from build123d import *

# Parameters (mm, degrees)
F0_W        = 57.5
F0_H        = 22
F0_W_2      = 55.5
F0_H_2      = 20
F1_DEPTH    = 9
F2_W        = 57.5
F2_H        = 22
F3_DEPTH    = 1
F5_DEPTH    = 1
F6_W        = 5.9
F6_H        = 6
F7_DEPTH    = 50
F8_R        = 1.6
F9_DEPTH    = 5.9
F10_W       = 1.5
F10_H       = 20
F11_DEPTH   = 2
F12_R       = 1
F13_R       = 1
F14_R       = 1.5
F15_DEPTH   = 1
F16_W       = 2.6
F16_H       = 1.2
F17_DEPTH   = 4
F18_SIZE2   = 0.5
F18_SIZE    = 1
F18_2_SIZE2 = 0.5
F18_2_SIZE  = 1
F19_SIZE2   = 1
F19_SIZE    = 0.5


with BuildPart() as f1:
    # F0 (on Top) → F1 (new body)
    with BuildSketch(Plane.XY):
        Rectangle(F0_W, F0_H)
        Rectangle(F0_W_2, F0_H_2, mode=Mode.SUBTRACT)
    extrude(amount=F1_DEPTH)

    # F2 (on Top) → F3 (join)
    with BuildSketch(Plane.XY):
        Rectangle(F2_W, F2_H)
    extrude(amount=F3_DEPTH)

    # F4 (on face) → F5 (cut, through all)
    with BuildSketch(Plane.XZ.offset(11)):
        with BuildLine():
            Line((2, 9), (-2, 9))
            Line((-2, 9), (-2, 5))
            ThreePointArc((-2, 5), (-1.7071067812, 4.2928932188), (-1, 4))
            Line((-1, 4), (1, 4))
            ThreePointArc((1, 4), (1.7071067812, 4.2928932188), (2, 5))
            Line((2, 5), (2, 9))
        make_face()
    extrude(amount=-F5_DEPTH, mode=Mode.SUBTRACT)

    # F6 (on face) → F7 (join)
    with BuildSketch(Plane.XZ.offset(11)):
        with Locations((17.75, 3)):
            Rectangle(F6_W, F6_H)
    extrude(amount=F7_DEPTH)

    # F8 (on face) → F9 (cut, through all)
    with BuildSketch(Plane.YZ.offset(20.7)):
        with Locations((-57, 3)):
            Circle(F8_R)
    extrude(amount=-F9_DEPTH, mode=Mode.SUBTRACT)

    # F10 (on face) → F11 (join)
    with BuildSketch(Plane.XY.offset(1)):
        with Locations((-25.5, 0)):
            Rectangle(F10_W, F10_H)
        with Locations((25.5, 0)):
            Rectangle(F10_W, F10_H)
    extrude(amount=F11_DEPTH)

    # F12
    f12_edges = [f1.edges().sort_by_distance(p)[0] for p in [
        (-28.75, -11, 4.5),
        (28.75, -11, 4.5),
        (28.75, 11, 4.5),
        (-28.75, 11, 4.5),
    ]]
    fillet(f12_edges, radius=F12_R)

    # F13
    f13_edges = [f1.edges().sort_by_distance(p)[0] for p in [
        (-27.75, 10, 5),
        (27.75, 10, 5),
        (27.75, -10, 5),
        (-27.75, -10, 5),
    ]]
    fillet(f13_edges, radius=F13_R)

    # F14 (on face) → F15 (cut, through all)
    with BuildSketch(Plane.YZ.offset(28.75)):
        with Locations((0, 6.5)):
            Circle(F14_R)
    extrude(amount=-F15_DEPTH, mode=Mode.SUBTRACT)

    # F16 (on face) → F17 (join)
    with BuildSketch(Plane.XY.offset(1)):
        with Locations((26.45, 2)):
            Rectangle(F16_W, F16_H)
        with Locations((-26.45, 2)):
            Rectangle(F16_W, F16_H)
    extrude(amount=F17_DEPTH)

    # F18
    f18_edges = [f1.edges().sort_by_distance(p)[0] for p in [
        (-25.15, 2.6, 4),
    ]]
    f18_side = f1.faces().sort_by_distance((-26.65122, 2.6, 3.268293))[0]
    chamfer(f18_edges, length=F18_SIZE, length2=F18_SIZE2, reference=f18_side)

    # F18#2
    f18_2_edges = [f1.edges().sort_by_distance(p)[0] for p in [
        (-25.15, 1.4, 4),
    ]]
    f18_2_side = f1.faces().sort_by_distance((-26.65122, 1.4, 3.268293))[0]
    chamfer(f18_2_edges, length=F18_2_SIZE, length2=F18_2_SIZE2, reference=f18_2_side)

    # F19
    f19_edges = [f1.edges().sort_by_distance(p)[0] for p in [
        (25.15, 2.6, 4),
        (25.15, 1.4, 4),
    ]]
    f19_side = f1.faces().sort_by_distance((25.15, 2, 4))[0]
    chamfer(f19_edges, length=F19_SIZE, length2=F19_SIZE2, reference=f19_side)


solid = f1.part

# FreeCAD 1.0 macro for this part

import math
import FreeCAD as App
import Part
import Sketcher
from FreeCAD import Vector
Q = App.Units.Quantity


def edges_at(feature, points):
    """Names of the edges that pass closest to the given points."""
    edges = feature.Shape.Edges
    near = lambda p: min(range(len(edges)), key=lambda i: edges[i].distToShape(Part.Vertex(*p))[0])
    return sorted({f"Edge{near(p) + 1}" for p in points})

doc = App.newDocument("Part")
body = doc.addObject("PartDesign::Body", "Body")

# Sketch on XY plane
sketch1 = body.newObject("Sketcher::SketchObject", "Sketch")
sketch1.AttachmentSupport = (doc.getObject("XY_Plane"), [""])
sketch1.MapMode = "FlatFace"
sketch1.addGeometry([
    Part.LineSegment(Vector(-29, 11, 0), Vector(-29, -11, 0)),  # 0
    Part.LineSegment(Vector(-29, -11, 0), Vector(29, -11, 0)),  # 1
    Part.LineSegment(Vector(29, -11, 0), Vector(29, 11, 0)),  # 2
    Part.LineSegment(Vector(29, 11, 0), Vector(-29, 11, 0)),  # 3
    Part.LineSegment(Vector(28, -10, 0), Vector(-28, -10, 0)),  # 4
    Part.LineSegment(Vector(-28, -10, 0), Vector(-28, 10, 0)),  # 5
    Part.LineSegment(Vector(-28, 10, 0), Vector(28, 10, 0)),  # 6
    Part.LineSegment(Vector(28, 10, 0), Vector(28, -10, 0)),  # 7
], False)
sketch1.addConstraint([
    Sketcher.Constraint("Coincident", 0, 2, 1, 1),
    Sketcher.Constraint("Coincident", 1, 2, 2, 1),
    Sketcher.Constraint("Coincident", 2, 2, 3, 1),
    Sketcher.Constraint("Coincident", 3, 2, 0, 1),
    Sketcher.Constraint("Coincident", 4, 2, 5, 1),
    Sketcher.Constraint("Coincident", 5, 2, 6, 1),
    Sketcher.Constraint("Coincident", 6, 2, 7, 1),
    Sketcher.Constraint("Coincident", 7, 2, 4, 1),
    Sketcher.Constraint("Vertical", 0),
    Sketcher.Constraint("Horizontal", 1),
    Sketcher.Constraint("Vertical", 2),
    Sketcher.Constraint("Horizontal", 3),
    Sketcher.Constraint("Horizontal", 4),
    Sketcher.Constraint("Vertical", 5),
    Sketcher.Constraint("Horizontal", 6),
    Sketcher.Constraint("Vertical", 7),
    Sketcher.Constraint("Symmetric", 0, 2, 2, 2, -1, 1),
    Sketcher.Constraint("Symmetric", 4, 2, 6, 2, -1, 1),
    Sketcher.Constraint("DistanceY", 0, 2, 0, 1, Q("22 mm")),
    Sketcher.Constraint("DistanceY", 5, 1, 5, 2, Q("20 mm")),
    Sketcher.Constraint("DistanceX", 1, 1, 1, 2, Q("57.5 mm")),
    Sketcher.Constraint("DistanceX", 4, 2, 4, 1, Q("55.5 mm")),
])
pad1 = body.newObject("PartDesign::Pad", "Pad")
pad1.Profile = sketch1
pad1.Length = 9

# Sketch on XY plane
sketch2 = body.newObject("Sketcher::SketchObject", "Sketch001")
sketch2.AttachmentSupport = (doc.getObject("XY_Plane"), [""])
sketch2.MapMode = "FlatFace"
sketch2.addGeometry([
    Part.LineSegment(Vector(-29, 11, 0), Vector(-29, -11, 0)),
    Part.LineSegment(Vector(-29, -11, 0), Vector(29, -11, 0)),
    Part.LineSegment(Vector(29, -11, 0), Vector(29, 11, 0)),
    Part.LineSegment(Vector(29, 11, 0), Vector(-29, 11, 0)),
], False)
sketch2.addConstraint([
    Sketcher.Constraint("Coincident", 0, 2, 1, 1),
    Sketcher.Constraint("Coincident", 1, 2, 2, 1),
    Sketcher.Constraint("Coincident", 2, 2, 3, 1),
    Sketcher.Constraint("Coincident", 3, 2, 0, 1),
    Sketcher.Constraint("Vertical", 0),
    Sketcher.Constraint("Horizontal", 1),
    Sketcher.Constraint("Vertical", 2),
    Sketcher.Constraint("Horizontal", 3),
    Sketcher.Constraint("Symmetric", 0, 2, 2, 2, -1, 1),
    Sketcher.Constraint("DistanceY", 0, 2, 0, 1, Q("22 mm")),
    Sketcher.Constraint("DistanceX", 1, 1, 1, 2, Q("57.5 mm")),
])
pad2 = body.newObject("PartDesign::Pad", "Pad001")
pad2.Profile = sketch2
pad2.Length = 1

# Sketch on XZ plane
sketch3 = body.newObject("Sketcher::SketchObject", "Sketch002")
sketch3.AttachmentSupport = (doc.getObject("XZ_Plane"), [""])
sketch3.MapMode = "FlatFace"
sketch3.AttachmentOffset = App.Placement(Vector(0, 0, 11), App.Rotation())
sketch3.addGeometry([
    Part.LineSegment(Vector(2, 9, 0), Vector(-2, 9, 0)),  # 0
    Part.LineSegment(Vector(-2, 9, 0), Vector(-2, 5, 0)),  # 1
    Part.ArcOfCircle(Part.Circle(Vector(-1, 5, 0), Vector(0, 0, 1), 1), math.radians(180), math.radians(270)),  # 2
    Part.LineSegment(Vector(-1, 4, 0), Vector(1, 4, 0)),  # 3
    Part.ArcOfCircle(Part.Circle(Vector(1, 5, 0), Vector(0, 0, 1), 1), math.radians(-90), math.radians(0)),  # 4
    Part.LineSegment(Vector(2, 5, 0), Vector(2, 9, 0)),  # 5
], False)
sketch3.addConstraint([
    Sketcher.Constraint("Coincident", 0, 2, 1, 1),
    Sketcher.Constraint("Tangent", 1, 2, 2, 1),
    Sketcher.Constraint("Tangent", 2, 2, 3, 1),
    Sketcher.Constraint("Tangent", 3, 2, 4, 1),
    Sketcher.Constraint("Tangent", 4, 2, 5, 1),
    Sketcher.Constraint("Coincident", 5, 2, 0, 1),
    Sketcher.Constraint("Horizontal", 0),
    Sketcher.Constraint("Vertical", 1),
    Sketcher.Constraint("Horizontal", 3),
    Sketcher.Constraint("Vertical", 5),
    Sketcher.Constraint("Equal", 2, 4),
    Sketcher.Constraint("Equal", 0, 1),
    Sketcher.Constraint("Radius", 2, Q("1 mm")),
    Sketcher.Constraint("DistanceX", 0, 2, 0, 1, Q("4 mm")),
    Sketcher.Constraint("DistanceX", 2, 3, -1, 1, Q("1 mm")),
    Sketcher.Constraint("DistanceY", -1, 1, 2, 3, Q("5 mm")),
])
pocket1 = body.newObject("PartDesign::Pocket", "Pocket")
pocket1.Profile = sketch3
pocket1.Length = 1

# Sketch on XZ plane
sketch4 = body.newObject("Sketcher::SketchObject", "Sketch003")
sketch4.AttachmentSupport = (doc.getObject("XZ_Plane"), [""])
sketch4.MapMode = "FlatFace"
sketch4.AttachmentOffset = App.Placement(Vector(0, 0, 11), App.Rotation())
sketch4.addGeometry([
    Part.LineSegment(Vector(15, 6, 0), Vector(15, 0, 0)),
    Part.LineSegment(Vector(15, 0, 0), Vector(21, 0, 0)),
    Part.LineSegment(Vector(21, 0, 0), Vector(21, 6, 0)),
    Part.LineSegment(Vector(21, 6, 0), Vector(15, 6, 0)),
], False)
sketch4.addConstraint([
    Sketcher.Constraint("Coincident", 0, 2, 1, 1),
    Sketcher.Constraint("Coincident", 1, 2, 2, 1),
    Sketcher.Constraint("Coincident", 2, 2, 3, 1),
    Sketcher.Constraint("Coincident", 3, 2, 0, 1),
    Sketcher.Constraint("Vertical", 0),
    Sketcher.Constraint("Horizontal", 1),
    Sketcher.Constraint("Vertical", 2),
    Sketcher.Constraint("Horizontal", 3),
    Sketcher.Constraint("PointOnObject", 0, 2, -1),
    Sketcher.Constraint("DistanceY", 0, 2, 0, 1, Q("6 mm")),
    Sketcher.Constraint("DistanceX", 1, 1, 1, 2, Q("5.9 mm")),
    Sketcher.Constraint("DistanceX", -1, 1, 0, 2, Q("14.8 mm")),
])
pad3 = body.newObject("PartDesign::Pad", "Pad002")
pad3.Profile = sketch4
pad3.Length = 50

# Sketch on YZ plane
sketch5 = body.newObject("Sketcher::SketchObject", "Sketch004")
sketch5.AttachmentSupport = (doc.getObject("YZ_Plane"), [""])
sketch5.MapMode = "FlatFace"
sketch5.AttachmentOffset = App.Placement(Vector(0, 0, 20.7), App.Rotation())
sketch5.addGeometry(Part.Circle(Vector(-57, 3, 0), Vector(0, 0, 1), 1.6), False)
sketch5.addConstraint([
    Sketcher.Constraint("Diameter", 0, Q("3.2 mm")),
    Sketcher.Constraint("DistanceX", 0, 3, -1, 1, Q("57 mm")),
    Sketcher.Constraint("DistanceY", -1, 1, 0, 3, Q("3 mm")),
])
pocket2 = body.newObject("PartDesign::Pocket", "Pocket001")
pocket2.Profile = sketch5
pocket2.Type = "ThroughAll"

# Sketch on XY plane
sketch6 = body.newObject("Sketcher::SketchObject", "Sketch005")
sketch6.AttachmentSupport = (doc.getObject("XY_Plane"), [""])
sketch6.MapMode = "FlatFace"
sketch6.AttachmentOffset = App.Placement(Vector(0, 0, 1), App.Rotation())
sketch6.addGeometry([
    Part.LineSegment(Vector(-26.2, 10, 0), Vector(-26.2, -10, 0)),  # 0
    Part.LineSegment(Vector(-26.2, -10, 0), Vector(-24.8, -10, 0)),  # 1
    Part.LineSegment(Vector(-24.8, -10, 0), Vector(-24.8, 10, 0)),  # 2
    Part.LineSegment(Vector(-24.8, 10, 0), Vector(-26.2, 10, 0)),  # 3
    Part.LineSegment(Vector(24.8, 10, 0), Vector(24.8, -10, 0)),  # 4
    Part.LineSegment(Vector(24.8, -10, 0), Vector(26.2, -10, 0)),  # 5
    Part.LineSegment(Vector(26.2, -10, 0), Vector(26.2, 10, 0)),  # 6
    Part.LineSegment(Vector(26.2, 10, 0), Vector(24.8, 10, 0)),  # 7
], False)
sketch6.addConstraint([
    Sketcher.Constraint("Coincident", 0, 2, 1, 1),
    Sketcher.Constraint("Coincident", 1, 2, 2, 1),
    Sketcher.Constraint("Coincident", 2, 2, 3, 1),
    Sketcher.Constraint("Coincident", 3, 2, 0, 1),
    Sketcher.Constraint("Coincident", 4, 2, 5, 1),
    Sketcher.Constraint("Coincident", 5, 2, 6, 1),
    Sketcher.Constraint("Coincident", 6, 2, 7, 1),
    Sketcher.Constraint("Coincident", 7, 2, 4, 1),
    Sketcher.Constraint("Vertical", 0),
    Sketcher.Constraint("Horizontal", 1),
    Sketcher.Constraint("Vertical", 2),
    Sketcher.Constraint("Horizontal", 3),
    Sketcher.Constraint("Vertical", 4),
    Sketcher.Constraint("Horizontal", 5),
    Sketcher.Constraint("Vertical", 6),
    Sketcher.Constraint("Horizontal", 7),
    Sketcher.Constraint("Symmetric", 2, 2, 4, 2, -1, 1),
    Sketcher.Constraint("Symmetric", 0, 2, 6, 2, -1, 1),
    Sketcher.Constraint("Horizontal", 1, 2, 4, 2),
    Sketcher.Constraint("DistanceY", 0, 2, 0, 1, Q("20 mm")),
    Sketcher.Constraint("DistanceX", 1, 1, 1, 2, Q("1.5 mm")),
    Sketcher.Constraint("DistanceX", 0, 2, 4, 2, Q("51 mm")),
])
pad4 = body.newObject("PartDesign::Pad", "Pad003")
pad4.Profile = sketch6
pad4.Length = 2
doc.recompute()

fillet = body.newObject("PartDesign::Fillet", "Fillet")
fillet.Base = (pad4, edges_at(pad4, [
    (-28.75, -11, 4.5),
    (28.75, -11, 4.5),
    (28.75, 11, 4.5),
    (-28.75, 11, 4.5),
]))
fillet.Radius = 1
doc.recompute()

fillet2 = body.newObject("PartDesign::Fillet", "Fillet001")
fillet2.Base = (fillet, edges_at(fillet, [
    (-27.75, 10, 5),
    (27.75, 10, 5),
    (27.75, -10, 5),
    (-27.75, -10, 5),
]))
fillet2.Radius = 1

# Sketch on YZ plane
sketch7 = body.newObject("Sketcher::SketchObject", "Sketch006")
sketch7.AttachmentSupport = (doc.getObject("YZ_Plane"), [""])
sketch7.MapMode = "FlatFace"
sketch7.AttachmentOffset = App.Placement(Vector(0, 0, 28.75), App.Rotation())
sketch7.addGeometry(Part.Circle(Vector(0, 6.5, 0), Vector(0, 0, 1), 1.5), False)
sketch7.addConstraint([
    Sketcher.Constraint("PointOnObject", 0, 3, -2),
    Sketcher.Constraint("Diameter", 0, Q("3 mm")),
    Sketcher.Constraint("DistanceY", -1, 1, 0, 3, Q("6.5 mm")),
])
pocket3 = body.newObject("PartDesign::Pocket", "Pocket002")
pocket3.Profile = sketch7
pocket3.Length = 1

# Sketch on XY plane
sketch8 = body.newObject("Sketcher::SketchObject", "Sketch007")
sketch8.AttachmentSupport = (doc.getObject("XY_Plane"), [""])
sketch8.MapMode = "FlatFace"
sketch8.AttachmentOffset = App.Placement(Vector(0, 0, 1), App.Rotation())
sketch8.addGeometry([
    Part.LineSegment(Vector(25.1, 2.6, 0), Vector(25.1, 1.4, 0)),  # 0
    Part.LineSegment(Vector(25.1, 1.4, 0), Vector(27.8, 1.4, 0)),  # 1
    Part.LineSegment(Vector(27.8, 1.4, 0), Vector(27.8, 2.6, 0)),  # 2
    Part.LineSegment(Vector(27.8, 2.6, 0), Vector(25.1, 2.6, 0)),  # 3
    Part.LineSegment(Vector(-27.8, 2.6, 0), Vector(-27.8, 1.4, 0)),  # 4
    Part.LineSegment(Vector(-27.8, 1.4, 0), Vector(-25.1, 1.4, 0)),  # 5
    Part.LineSegment(Vector(-25.1, 1.4, 0), Vector(-25.1, 2.6, 0)),  # 6
    Part.LineSegment(Vector(-25.1, 2.6, 0), Vector(-27.8, 2.6, 0)),  # 7
], False)
sketch8.addConstraint([
    Sketcher.Constraint("Coincident", 0, 2, 1, 1),
    Sketcher.Constraint("Coincident", 1, 2, 2, 1),
    Sketcher.Constraint("Coincident", 2, 2, 3, 1),
    Sketcher.Constraint("Coincident", 3, 2, 0, 1),
    Sketcher.Constraint("Coincident", 4, 2, 5, 1),
    Sketcher.Constraint("Coincident", 5, 2, 6, 1),
    Sketcher.Constraint("Coincident", 6, 2, 7, 1),
    Sketcher.Constraint("Coincident", 7, 2, 4, 1),
    Sketcher.Constraint("Vertical", 0),
    Sketcher.Constraint("Horizontal", 1),
    Sketcher.Constraint("Vertical", 2),
    Sketcher.Constraint("Horizontal", 3),
    Sketcher.Constraint("Vertical", 4),
    Sketcher.Constraint("Horizontal", 5),
    Sketcher.Constraint("Vertical", 6),
    Sketcher.Constraint("Horizontal", 7),
    Sketcher.Constraint("Symmetric", 1, 2, 4, 2, -2),
    Sketcher.Constraint("Symmetric", 3, 2, 6, 2, -2),
    Sketcher.Constraint("DistanceX", 1, 1, 1, 2, Q("2.6 mm")),
    Sketcher.Constraint("DistanceY", 0, 2, 0, 1, Q("1.2 mm")),
    Sketcher.Constraint("DistanceY", -1, 1, 0, 2, Q("1.4 mm")),
    Sketcher.Constraint("DistanceX", 4, 2, 0, 2, Q("52.9 mm")),
])
pad5 = body.newObject("PartDesign::Pad", "Pad004")
pad5.Profile = sketch8
pad5.Length = 4
doc.recompute()

chamfer = body.newObject("PartDesign::Chamfer", "Chamfer")
chamfer.Base = (pad5, edges_at(pad5, [(-25.15, 2.6, 4)]))
chamfer.ChamferType = "Two distances"
chamfer.Size = 1
chamfer.Size2 = 0.5
doc.recompute()

chamfer2 = body.newObject("PartDesign::Chamfer", "Chamfer001")
chamfer2.Base = (chamfer, edges_at(chamfer, [(-25.15, 1.4, 4)]))
chamfer2.ChamferType = "Two distances"
chamfer2.Size = 1
chamfer2.Size2 = 0.5
chamfer2.FlipDirection = True
doc.recompute()

chamfer3 = body.newObject("PartDesign::Chamfer", "Chamfer002")
chamfer3.Base = (chamfer2, edges_at(chamfer2, [(25.15, 2.6, 4), (25.15, 1.4, 4)]))
chamfer3.ChamferType = "Two distances"
chamfer3.Size = 0.5
chamfer3.Size2 = 1
chamfer3.FlipDirection = True

doc.recompute()
